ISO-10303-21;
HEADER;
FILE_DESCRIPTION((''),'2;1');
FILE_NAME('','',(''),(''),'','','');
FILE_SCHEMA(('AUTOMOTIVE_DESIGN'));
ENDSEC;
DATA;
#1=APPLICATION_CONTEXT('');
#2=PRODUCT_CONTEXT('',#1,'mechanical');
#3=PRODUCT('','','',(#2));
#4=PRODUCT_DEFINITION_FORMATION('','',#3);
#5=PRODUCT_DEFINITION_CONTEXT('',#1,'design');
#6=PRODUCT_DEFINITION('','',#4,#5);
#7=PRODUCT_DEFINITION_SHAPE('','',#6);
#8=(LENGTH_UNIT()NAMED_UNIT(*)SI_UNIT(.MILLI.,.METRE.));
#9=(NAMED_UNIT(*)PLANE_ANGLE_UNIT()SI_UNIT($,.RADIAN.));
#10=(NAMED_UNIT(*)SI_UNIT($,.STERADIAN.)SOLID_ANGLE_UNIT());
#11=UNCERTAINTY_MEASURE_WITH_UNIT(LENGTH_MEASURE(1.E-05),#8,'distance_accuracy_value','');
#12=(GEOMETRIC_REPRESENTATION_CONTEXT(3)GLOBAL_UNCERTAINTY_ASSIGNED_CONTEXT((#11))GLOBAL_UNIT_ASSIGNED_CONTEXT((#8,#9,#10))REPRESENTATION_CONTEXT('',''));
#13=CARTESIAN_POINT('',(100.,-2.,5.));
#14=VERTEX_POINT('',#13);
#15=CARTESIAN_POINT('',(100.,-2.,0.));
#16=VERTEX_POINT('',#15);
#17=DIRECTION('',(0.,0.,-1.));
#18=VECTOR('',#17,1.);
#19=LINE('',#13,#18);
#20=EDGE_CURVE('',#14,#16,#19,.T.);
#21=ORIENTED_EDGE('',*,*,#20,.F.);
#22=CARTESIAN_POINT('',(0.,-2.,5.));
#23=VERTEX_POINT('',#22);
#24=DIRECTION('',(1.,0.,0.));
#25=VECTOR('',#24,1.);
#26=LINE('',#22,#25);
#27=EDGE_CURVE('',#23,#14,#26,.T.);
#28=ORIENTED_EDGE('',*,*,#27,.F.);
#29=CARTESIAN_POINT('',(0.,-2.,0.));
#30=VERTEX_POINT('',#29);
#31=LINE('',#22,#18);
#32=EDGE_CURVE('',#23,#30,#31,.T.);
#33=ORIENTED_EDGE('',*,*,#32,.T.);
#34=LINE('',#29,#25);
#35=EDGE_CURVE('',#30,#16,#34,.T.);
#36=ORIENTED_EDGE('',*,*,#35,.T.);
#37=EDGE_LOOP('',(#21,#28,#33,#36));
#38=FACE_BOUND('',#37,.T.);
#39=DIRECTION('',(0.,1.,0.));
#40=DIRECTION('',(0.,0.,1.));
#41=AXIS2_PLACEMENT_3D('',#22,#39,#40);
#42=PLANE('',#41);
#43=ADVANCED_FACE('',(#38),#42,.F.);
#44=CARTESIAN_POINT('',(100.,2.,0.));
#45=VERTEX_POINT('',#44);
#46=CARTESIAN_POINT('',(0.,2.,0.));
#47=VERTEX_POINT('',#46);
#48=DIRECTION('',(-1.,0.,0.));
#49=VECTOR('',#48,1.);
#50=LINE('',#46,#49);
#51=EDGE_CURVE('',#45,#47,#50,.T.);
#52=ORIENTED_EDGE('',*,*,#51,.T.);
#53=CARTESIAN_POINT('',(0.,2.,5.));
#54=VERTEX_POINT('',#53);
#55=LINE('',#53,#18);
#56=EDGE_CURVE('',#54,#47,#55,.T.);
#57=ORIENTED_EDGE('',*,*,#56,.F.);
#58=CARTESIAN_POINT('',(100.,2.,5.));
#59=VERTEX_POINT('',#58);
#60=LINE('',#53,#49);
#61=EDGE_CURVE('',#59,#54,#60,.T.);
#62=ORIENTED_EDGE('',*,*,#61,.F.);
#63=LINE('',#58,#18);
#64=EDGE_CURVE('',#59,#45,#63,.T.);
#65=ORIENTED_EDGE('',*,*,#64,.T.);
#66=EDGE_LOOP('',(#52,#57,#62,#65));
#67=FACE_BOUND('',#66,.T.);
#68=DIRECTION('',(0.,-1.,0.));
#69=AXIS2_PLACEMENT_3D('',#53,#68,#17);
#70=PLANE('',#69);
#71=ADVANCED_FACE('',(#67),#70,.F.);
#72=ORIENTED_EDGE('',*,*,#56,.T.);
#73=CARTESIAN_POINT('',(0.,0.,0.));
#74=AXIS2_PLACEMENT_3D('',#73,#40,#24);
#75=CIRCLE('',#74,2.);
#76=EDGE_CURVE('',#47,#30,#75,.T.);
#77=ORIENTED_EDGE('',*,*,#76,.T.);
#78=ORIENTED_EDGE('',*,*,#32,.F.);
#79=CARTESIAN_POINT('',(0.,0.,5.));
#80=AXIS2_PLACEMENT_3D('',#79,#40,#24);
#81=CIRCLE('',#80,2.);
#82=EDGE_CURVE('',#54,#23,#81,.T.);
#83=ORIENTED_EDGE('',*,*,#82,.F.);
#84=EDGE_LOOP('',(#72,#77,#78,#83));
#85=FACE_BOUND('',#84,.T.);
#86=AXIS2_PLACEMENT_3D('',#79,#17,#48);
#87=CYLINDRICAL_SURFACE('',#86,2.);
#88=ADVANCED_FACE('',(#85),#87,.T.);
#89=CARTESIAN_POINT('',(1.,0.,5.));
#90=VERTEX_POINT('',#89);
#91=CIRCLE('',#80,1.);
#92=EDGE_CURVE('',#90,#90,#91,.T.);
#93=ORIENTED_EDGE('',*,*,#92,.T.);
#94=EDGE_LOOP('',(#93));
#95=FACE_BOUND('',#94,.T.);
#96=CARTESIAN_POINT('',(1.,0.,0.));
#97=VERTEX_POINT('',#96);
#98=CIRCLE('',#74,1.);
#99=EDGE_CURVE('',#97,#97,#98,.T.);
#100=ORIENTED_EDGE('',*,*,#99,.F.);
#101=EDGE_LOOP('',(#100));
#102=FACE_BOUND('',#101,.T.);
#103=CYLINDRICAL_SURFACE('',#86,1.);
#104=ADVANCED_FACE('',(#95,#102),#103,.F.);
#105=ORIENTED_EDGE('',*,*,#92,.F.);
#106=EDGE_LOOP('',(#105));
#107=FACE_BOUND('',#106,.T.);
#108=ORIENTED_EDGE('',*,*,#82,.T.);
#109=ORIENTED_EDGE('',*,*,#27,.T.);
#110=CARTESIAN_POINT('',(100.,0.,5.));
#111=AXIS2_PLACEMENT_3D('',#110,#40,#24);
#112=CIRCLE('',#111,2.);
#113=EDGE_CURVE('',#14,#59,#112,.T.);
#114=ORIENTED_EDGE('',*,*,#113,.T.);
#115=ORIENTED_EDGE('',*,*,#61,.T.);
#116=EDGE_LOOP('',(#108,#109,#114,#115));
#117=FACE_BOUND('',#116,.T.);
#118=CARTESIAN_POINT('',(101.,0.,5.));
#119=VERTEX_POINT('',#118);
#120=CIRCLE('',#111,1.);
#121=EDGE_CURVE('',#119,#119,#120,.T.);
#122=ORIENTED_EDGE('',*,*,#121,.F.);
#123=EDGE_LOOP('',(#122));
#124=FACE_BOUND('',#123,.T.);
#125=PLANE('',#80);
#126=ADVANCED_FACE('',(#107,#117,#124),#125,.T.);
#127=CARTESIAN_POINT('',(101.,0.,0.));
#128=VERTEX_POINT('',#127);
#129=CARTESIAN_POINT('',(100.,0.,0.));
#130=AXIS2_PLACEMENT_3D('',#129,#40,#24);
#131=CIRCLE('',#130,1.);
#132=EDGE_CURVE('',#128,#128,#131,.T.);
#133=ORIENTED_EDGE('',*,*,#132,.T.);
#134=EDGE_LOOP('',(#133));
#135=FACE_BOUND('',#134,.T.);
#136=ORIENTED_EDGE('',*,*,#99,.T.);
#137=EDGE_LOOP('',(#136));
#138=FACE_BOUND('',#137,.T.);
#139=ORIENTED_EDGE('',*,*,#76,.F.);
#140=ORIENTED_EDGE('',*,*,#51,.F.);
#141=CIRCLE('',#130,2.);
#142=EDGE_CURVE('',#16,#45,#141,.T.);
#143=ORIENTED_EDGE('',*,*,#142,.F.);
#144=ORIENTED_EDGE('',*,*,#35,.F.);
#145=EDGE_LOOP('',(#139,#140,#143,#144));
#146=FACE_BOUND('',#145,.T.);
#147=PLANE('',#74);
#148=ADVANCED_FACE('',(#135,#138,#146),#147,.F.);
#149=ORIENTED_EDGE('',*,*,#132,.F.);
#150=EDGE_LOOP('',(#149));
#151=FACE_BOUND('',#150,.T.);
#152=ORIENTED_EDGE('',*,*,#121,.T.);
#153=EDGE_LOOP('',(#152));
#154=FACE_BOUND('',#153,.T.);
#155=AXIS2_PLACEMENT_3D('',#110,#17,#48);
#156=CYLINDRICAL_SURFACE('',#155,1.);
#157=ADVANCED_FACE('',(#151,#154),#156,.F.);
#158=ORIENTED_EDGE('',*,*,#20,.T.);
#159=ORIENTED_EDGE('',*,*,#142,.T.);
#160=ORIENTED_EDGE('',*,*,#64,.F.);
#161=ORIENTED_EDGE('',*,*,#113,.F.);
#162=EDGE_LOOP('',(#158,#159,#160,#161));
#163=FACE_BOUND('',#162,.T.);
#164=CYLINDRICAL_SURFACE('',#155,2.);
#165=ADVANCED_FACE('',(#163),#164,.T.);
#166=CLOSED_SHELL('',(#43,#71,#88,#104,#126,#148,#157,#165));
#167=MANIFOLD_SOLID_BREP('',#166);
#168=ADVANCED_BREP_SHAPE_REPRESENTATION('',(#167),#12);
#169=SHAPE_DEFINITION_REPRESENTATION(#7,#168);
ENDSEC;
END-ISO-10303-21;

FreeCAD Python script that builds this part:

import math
import FreeCAD as App
import Part
import Sketcher

V = App.Vector
Q = App.Units.Quantity

doc = App.newDocument("Part")
body = doc.addObject("PartDesign::Body", "Body")

# Sketch on XY plane
sketch1 = body.newObject("Sketcher::SketchObject", "Sketch")
sketch1.AttachmentSupport = (doc.getObject("XY_Plane"), [""])
sketch1.MapMode = "FlatFace"
sketch1.addGeometry([
    Part.LineSegment(V(100, 2, 0), V(0, 2, 0)),  # 0
    Part.ArcOfCircle(Part.Circle(V(0, 0, 0), V(0, 0, 1), 2), math.radians(90), math.radians(270)),  # 1
    Part.LineSegment(V(0, -2, 0), V(100, -2, 0)),  # 2
    Part.ArcOfCircle(Part.Circle(V(100, 0, 0), V(0, 0, 1), 2), math.radians(-90), math.radians(90)),  # 3
    Part.Circle(V(100, 0, 0), V(0, 0, 1), 1),  # 4
    Part.Circle(V(0, 0, 0), V(0, 0, 1), 1),  # 5
], False)
sketch1.addConstraint([
    Sketcher.Constraint("Tangent", 0, 2, 1, 1),
    Sketcher.Constraint("Tangent", 1, 2, 2, 1),
    Sketcher.Constraint("Tangent", 2, 2, 3, 1),
    Sketcher.Constraint("Tangent", 3, 2, 0, 1),
    Sketcher.Constraint("Horizontal", 0),
    Sketcher.Constraint("Horizontal", 2),
    Sketcher.Constraint("Coincident", 1, 3, -1, 1),
    Sketcher.Constraint("Coincident", 5, 3, -1, 1),
    Sketcher.Constraint("Coincident", 4, 3, 3, 3),
    Sketcher.Constraint("Equal", 4, 5),
    Sketcher.Constraint("Diameter", 4, Q("2 mm")),
    Sketcher.Constraint("Radius", 1, Q("2 mm")),
    Sketcher.Constraint("DistanceX", 0, 2, 0, 1, Q("100 mm")),
])
pad1 = body.newObject("PartDesign::Pad", "Pad")
pad1.Profile = sketch1
pad1.Length = 5

doc.recompute()
